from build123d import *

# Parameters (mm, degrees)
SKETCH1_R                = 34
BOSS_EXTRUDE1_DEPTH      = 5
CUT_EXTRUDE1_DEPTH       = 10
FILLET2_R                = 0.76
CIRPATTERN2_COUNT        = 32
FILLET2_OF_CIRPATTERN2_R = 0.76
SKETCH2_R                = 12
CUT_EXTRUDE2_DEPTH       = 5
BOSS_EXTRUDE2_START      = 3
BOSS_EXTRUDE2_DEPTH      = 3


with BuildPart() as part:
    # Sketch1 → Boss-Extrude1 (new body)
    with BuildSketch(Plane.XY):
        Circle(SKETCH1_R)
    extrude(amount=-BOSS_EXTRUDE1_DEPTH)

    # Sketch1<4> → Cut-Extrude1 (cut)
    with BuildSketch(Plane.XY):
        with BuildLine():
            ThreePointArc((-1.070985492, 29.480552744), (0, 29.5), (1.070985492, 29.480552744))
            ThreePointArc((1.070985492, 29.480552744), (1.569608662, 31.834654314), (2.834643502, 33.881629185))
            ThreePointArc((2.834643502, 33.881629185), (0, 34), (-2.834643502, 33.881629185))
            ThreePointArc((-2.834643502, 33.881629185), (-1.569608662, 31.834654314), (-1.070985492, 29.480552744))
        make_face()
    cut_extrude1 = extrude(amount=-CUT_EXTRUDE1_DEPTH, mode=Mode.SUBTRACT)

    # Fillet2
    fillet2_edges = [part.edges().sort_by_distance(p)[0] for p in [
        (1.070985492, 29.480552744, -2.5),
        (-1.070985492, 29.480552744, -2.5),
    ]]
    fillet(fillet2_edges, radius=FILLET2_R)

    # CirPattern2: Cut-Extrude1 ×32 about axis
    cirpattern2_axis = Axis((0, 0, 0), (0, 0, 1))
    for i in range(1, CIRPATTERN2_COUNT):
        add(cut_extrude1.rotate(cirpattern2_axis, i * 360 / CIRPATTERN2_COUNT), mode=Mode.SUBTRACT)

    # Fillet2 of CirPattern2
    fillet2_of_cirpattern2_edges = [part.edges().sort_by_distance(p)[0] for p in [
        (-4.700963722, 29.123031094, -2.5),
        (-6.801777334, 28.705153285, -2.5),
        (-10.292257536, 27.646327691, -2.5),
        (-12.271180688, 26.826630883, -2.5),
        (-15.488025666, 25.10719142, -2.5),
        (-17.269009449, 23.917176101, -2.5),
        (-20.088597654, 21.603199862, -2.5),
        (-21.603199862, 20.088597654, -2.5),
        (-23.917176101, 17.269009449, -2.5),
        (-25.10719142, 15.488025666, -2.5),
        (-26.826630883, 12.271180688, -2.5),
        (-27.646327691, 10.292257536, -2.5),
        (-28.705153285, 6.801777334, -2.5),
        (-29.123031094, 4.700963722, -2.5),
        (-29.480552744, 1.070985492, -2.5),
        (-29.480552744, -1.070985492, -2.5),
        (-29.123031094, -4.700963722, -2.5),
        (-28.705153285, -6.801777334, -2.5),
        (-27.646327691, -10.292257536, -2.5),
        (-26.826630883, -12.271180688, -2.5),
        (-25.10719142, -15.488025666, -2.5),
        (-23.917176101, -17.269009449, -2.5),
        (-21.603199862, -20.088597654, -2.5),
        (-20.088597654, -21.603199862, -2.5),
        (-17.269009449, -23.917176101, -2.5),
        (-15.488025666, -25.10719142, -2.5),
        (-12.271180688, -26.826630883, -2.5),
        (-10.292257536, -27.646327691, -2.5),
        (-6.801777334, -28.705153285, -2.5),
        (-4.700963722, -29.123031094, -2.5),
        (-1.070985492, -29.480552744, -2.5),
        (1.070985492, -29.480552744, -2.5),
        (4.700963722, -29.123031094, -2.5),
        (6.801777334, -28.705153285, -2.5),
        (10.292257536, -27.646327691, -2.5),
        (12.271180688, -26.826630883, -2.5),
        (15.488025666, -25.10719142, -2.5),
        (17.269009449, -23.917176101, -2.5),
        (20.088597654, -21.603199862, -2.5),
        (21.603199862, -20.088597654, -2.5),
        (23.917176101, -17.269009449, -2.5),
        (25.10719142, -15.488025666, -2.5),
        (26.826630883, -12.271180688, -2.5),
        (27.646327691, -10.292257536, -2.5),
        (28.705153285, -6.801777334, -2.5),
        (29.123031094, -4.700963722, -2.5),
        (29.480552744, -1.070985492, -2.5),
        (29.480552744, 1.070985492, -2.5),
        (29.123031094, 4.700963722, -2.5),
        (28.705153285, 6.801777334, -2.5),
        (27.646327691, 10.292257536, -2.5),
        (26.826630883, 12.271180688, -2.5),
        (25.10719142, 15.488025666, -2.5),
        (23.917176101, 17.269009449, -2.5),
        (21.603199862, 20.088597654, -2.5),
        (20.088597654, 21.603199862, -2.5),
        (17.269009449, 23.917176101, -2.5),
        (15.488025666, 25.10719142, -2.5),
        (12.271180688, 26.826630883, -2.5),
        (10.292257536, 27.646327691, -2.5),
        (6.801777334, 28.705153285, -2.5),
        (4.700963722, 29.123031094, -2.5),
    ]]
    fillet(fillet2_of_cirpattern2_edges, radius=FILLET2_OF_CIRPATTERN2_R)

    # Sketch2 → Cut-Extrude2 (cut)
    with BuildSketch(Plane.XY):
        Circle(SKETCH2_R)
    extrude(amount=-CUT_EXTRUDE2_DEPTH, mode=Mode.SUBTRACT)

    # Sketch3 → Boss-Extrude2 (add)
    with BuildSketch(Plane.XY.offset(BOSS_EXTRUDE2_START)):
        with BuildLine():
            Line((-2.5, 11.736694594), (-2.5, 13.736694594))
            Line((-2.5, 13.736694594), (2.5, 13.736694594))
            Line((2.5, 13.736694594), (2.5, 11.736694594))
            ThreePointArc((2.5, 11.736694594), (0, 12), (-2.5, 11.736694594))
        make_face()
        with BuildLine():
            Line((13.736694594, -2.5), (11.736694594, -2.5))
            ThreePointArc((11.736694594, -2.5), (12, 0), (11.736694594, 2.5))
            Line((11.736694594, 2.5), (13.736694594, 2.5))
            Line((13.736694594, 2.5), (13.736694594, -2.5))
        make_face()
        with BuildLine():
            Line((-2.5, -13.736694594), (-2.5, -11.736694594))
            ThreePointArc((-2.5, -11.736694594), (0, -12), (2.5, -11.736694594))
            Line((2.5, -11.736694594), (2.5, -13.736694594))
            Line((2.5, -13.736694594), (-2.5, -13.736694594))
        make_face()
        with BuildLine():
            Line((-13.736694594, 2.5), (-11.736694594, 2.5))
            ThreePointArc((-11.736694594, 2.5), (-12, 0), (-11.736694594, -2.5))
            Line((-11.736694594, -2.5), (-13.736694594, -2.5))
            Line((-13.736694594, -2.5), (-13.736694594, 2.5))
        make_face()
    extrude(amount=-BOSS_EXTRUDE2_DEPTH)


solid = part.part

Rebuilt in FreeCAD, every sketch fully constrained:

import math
import FreeCAD as App
import Part
import Sketcher
from FreeCAD import Vector


def edges_at(feature, points):
    """Names of the edges that pass closest to the given points."""
    edges = feature.Shape.Edges
    near = lambda p: min(range(len(edges)), key=lambda i: edges[i].distToShape(Part.Vertex(*p))[0])
    return sorted({f"Edge{near(p) + 1}" for p in points})

doc = App.newDocument("Part")
body = doc.addObject("PartDesign::Body", "Body")

# Sketch on XY plane
sketch1 = body.newObject("Sketcher::SketchObject", "Sketch")
sketch1.AttachmentSupport = (doc.getObject("XY_Plane"), [""])
sketch1.MapMode = "FlatFace"
sketch1.addGeometry(Part.Circle(Vector(0, 0, 0), Vector(0, 0, 1), 34), False)
sketch1.addConstraint(Sketcher.Constraint("Coincident", 0, 3, -1, 1))
sketch1.addConstraint(Sketcher.Constraint("Diameter", 0, 68.0))
pad1 = body.newObject("PartDesign::Pad", "Pad")
pad1.Profile = sketch1
pad1.Length = 5
pad1.Reversed = True

# Sketch on XY plane
sketch2 = body.newObject("Sketcher::SketchObject", "Sketch001")
sketch2.AttachmentSupport = (doc.getObject("XY_Plane"), [""])
sketch2.MapMode = "FlatFace"
sketch2.addGeometry(Part.ArcOfCircle(Part.Circle(Vector(0, 0, 0), Vector(0, 0, 1), 29.5), math.radians(87.92), math.radians(92.08)), False)
sketch2.addGeometry(Part.ArcOfCircle(Part.Circle(Vector(8.1, 29.2, 0), Vector(0, 0, 1), 7), math.radians(138), math.radians(178)), False)
sketch2.addGeometry(Part.ArcOfCircle(Part.Circle(Vector(0, 0, 0), Vector(0, 0, 1), 34), math.radians(85.22), math.radians(94.78)), False)
sketch2.addGeometry(Part.ArcOfCircle(Part.Circle(Vector(-8.1, 29.2, 0), Vector(0, 0, 1), 7), math.radians(2), math.radians(42)), False)
sketch2.addConstraint(Sketcher.Constraint("Coincident", 0, 1, 1, 2))
sketch2.addConstraint(Sketcher.Constraint("Coincident", 1, 1, 2, 1))
sketch2.addConstraint(Sketcher.Constraint("Coincident", 2, 2, 3, 2))
sketch2.addConstraint(Sketcher.Constraint("Coincident", 3, 1, 0, 2))
sketch2.addConstraint(Sketcher.Constraint("Coincident", 0, 3, -1, 1))
sketch2.addConstraint(Sketcher.Constraint("Coincident", 2, 3, -1, 1))
sketch2.addConstraint(Sketcher.Constraint("Equal", 1, 3))
sketch2.addConstraint(Sketcher.Constraint("Symmetric", 1, 3, 3, 3, -2))
sketch2.addConstraint(Sketcher.Constraint("Radius", 2, 34.0))
sketch2.addConstraint(Sketcher.Constraint("Radius", 0, 29.5))
sketch2.addConstraint(Sketcher.Constraint("Radius", 1, 7.013084))
sketch2.addConstraint(Sketcher.Constraint("DistanceY", -1, 1, 1, 1, 33.881629))
sketch2.addConstraint(Sketcher.Constraint("DistanceX", 3, 3, 1, 3, 16.158892))
pocket1 = body.newObject("PartDesign::Pocket", "Pocket")
pocket1.Profile = sketch2
pocket1.Length = 10
doc.recompute()

fillet = body.newObject("PartDesign::Fillet", "Fillet")
fillet.Base = (pocket1, edges_at(pocket1, [(1.071, 29.481, -2.5), (-1.071, 29.481, -2.5)]))
fillet.Radius = 0.76
doc.recompute()

polarpattern = body.newObject("PartDesign::PolarPattern", "PolarPattern")
polarpattern.Originals = [pocket1]
polarpattern.Axis = (doc.getObject("Z_Axis"), [""])
polarpattern.Angle = 360
polarpattern.Occurrences = 32
body.Tip = polarpattern
doc.recompute()

fillet2 = body.newObject("PartDesign::Fillet", "Fillet001")
fillet2.Base = (polarpattern, edges_at(polarpattern, [
    (-4.701, 29.123, -2.5),
    (-6.802, 28.705, -2.5),
    (-10.292, 27.646, -2.5),
    (-12.271, 26.827, -2.5),
    (-15.488, 25.107, -2.5),
    (-17.269, 23.917, -2.5),
    (-20.089, 21.603, -2.5),
    (-21.603, 20.089, -2.5),
    (-23.917, 17.269, -2.5),
    (-25.107, 15.488, -2.5),
    (-26.827, 12.271, -2.5),
    (-27.646, 10.292, -2.5),
    (-28.705, 6.802, -2.5),
    (-29.123, 4.701, -2.5),
    (-29.481, 1.071, -2.5),
    (-29.481, -1.071, -2.5),
    (-29.123, -4.701, -2.5),
    (-28.705, -6.802, -2.5),
    (-27.646, -10.292, -2.5),
    (-26.827, -12.271, -2.5),
    (-25.107, -15.488, -2.5),
    (-23.917, -17.269, -2.5),
    (-21.603, -20.089, -2.5),
    (-20.089, -21.603, -2.5),
    (-17.269, -23.917, -2.5),
    (-15.488, -25.107, -2.5),
    (-12.271, -26.827, -2.5),
    (-10.292, -27.646, -2.5),
    (-6.802, -28.705, -2.5),
    (-4.701, -29.123, -2.5),
    (-1.071, -29.481, -2.5),
    (1.071, -29.481, -2.5),
    (4.701, -29.123, -2.5),
    (6.802, -28.705, -2.5),
    (10.292, -27.646, -2.5),
    (12.271, -26.827, -2.5),
    (15.488, -25.107, -2.5),
    (17.269, -23.917, -2.5),
    (20.089, -21.603, -2.5),
    (21.603, -20.089, -2.5),
    (23.917, -17.269, -2.5),
    (25.107, -15.488, -2.5),
    (26.827, -12.271, -2.5),
    (27.646, -10.292, -2.5),
    (28.705, -6.802, -2.5),
    (29.123, -4.701, -2.5),
    (29.481, -1.071, -2.5),
    (29.481, 1.071, -2.5),
    (29.123, 4.701, -2.5),
    (28.705, 6.802, -2.5),
    (27.646, 10.292, -2.5),
    (26.827, 12.271, -2.5),
    (25.107, 15.488, -2.5),
    (23.917, 17.269, -2.5),
    (21.603, 20.089, -2.5),
    (20.089, 21.603, -2.5),
    (17.269, 23.917, -2.5),
    (15.488, 25.107, -2.5),
    (12.271, 26.827, -2.5),
    (10.292, 27.646, -2.5),
    (6.802, 28.705, -2.5),
    (4.701, 29.123, -2.5),
]))
fillet2.Radius = 0.76

# Sketch on XY plane
sketch3 = body.newObject("Sketcher::SketchObject", "Sketch002")
sketch3.AttachmentSupport = (doc.getObject("XY_Plane"), [""])
sketch3.MapMode = "FlatFace"
sketch3.addGeometry(Part.Circle(Vector(0, 0, 0), Vector(0, 0, 1), 12), False)
sketch3.addConstraint(Sketcher.Constraint("Coincident", 0, 3, -1, 1))
sketch3.addConstraint(Sketcher.Constraint("Diameter", 0, 24.0))
pocket2 = body.newObject("PartDesign::Pocket", "Pocket001")
pocket2.Profile = sketch3
pocket2.Length = 5

# Sketch on XY plane
sketch4 = body.newObject("Sketcher::SketchObject", "Sketch003")
sketch4.AttachmentSupport = (doc.getObject("XY_Plane"), [""])
sketch4.MapMode = "FlatFace"
sketch4.AttachmentOffset = App.Placement(Vector(0, 0, 3), App.Rotation())
sketch4.addGeometry(Part.LineSegment(Vector(-2.5, 13.7, 0), Vector(-2.5, 11.7, 0)), False)
sketch4.addGeometry(Part.ArcOfCircle(Part.Circle(Vector(0, 0, 0), Vector(0, 0, 1), 12), math.radians(78), math.radians(102)), False)
sketch4.addGeometry(Part.LineSegment(Vector(2.5, 11.7, 0), Vector(2.5, 13.7, 0)), False)
sketch4.addGeometry(Part.LineSegment(Vector(2.5, 13.7, 0), Vector(-2.5, 13.7, 0)), False)
sketch4.addGeometry(Part.LineSegment(Vector(11.7, -2.5, 0), Vector(13.7, -2.5, 0)), False)
sketch4.addGeometry(Part.LineSegment(Vector(13.7, -2.5, 0), Vector(13.7, 2.5, 0)), False)
sketch4.addGeometry(Part.LineSegment(Vector(13.7, 2.5, 0), Vector(11.7, 2.5, 0)), False)
sketch4.addGeometry(Part.ArcOfCircle(Part.Circle(Vector(0, 0, 0), Vector(0, 0, 1), 12), math.radians(-12), math.radians(12)), False)
sketch4.addGeometry(Part.LineSegment(Vector(-2.5, -11.7, 0), Vector(-2.5, -13.7, 0)), False)
sketch4.addGeometry(Part.LineSegment(Vector(-2.5, -13.7, 0), Vector(2.5, -13.7, 0)), False)
sketch4.addGeometry(Part.LineSegment(Vector(2.5, -13.7, 0), Vector(2.5, -11.7, 0)), False)
sketch4.addGeometry(Part.ArcOfCircle(Part.Circle(Vector(0, 0, 0), Vector(0, 0, 1), 12), math.radians(-102), math.radians(-78)), False)
sketch4.addGeometry(Part.LineSegment(Vector(-11.7, 2.5, 0), Vector(-13.7, 2.5, 0)), False)
sketch4.addGeometry(Part.LineSegment(Vector(-13.7, 2.5, 0), Vector(-13.7, -2.5, 0)), False)
sketch4.addGeometry(Part.LineSegment(Vector(-13.7, -2.5, 0), Vector(-11.7, -2.5, 0)), False)
sketch4.addGeometry(Part.ArcOfCircle(Part.Circle(Vector(0, 0, 0), Vector(0, 0, 1), 12), math.radians(168), math.radians(192)), False)
sketch4.addConstraint(Sketcher.Constraint("Coincident", 0, 2, 1, 2))
sketch4.addConstraint(Sketcher.Constraint("Coincident", 1, 1, 2, 1))
sketch4.addConstraint(Sketcher.Constraint("Coincident", 2, 2, 3, 1))
sketch4.addConstraint(Sketcher.Constraint("Coincident", 3, 2, 0, 1))
sketch4.addConstraint(Sketcher.Constraint("Coincident", 4, 2, 5, 1))
sketch4.addConstraint(Sketcher.Constraint("Coincident", 5, 2, 6, 1))
sketch4.addConstraint(Sketcher.Constraint("Coincident", 6, 2, 7, 2))
sketch4.addConstraint(Sketcher.Constraint("Coincident", 7, 1, 4, 1))
sketch4.addConstraint(Sketcher.Constraint("Coincident", 8, 2, 9, 1))
sketch4.addConstraint(Sketcher.Constraint("Coincident", 9, 2, 10, 1))
sketch4.addConstraint(Sketcher.Constraint("Coincident", 10, 2, 11, 2))
sketch4.addConstraint(Sketcher.Constraint("Coincident", 11, 1, 8, 1))
sketch4.addConstraint(Sketcher.Constraint("Coincident", 12, 2, 13, 1))
sketch4.addConstraint(Sketcher.Constraint("Coincident", 13, 2, 14, 1))
sketch4.addConstraint(Sketcher.Constraint("Coincident", 14, 2, 15, 2))
sketch4.addConstraint(Sketcher.Constraint("Coincident", 15, 1, 12, 1))
sketch4.addConstraint(Sketcher.Constraint("Vertical", 0))
sketch4.addConstraint(Sketcher.Constraint("Vertical", 2))
sketch4.addConstraint(Sketcher.Constraint("Horizontal", 3))
sketch4.addConstraint(Sketcher.Constraint("Horizontal", 4))
sketch4.addConstraint(Sketcher.Constraint("Vertical", 5))
sketch4.addConstraint(Sketcher.Constraint("Horizontal", 6))
sketch4.addConstraint(Sketcher.Constraint("Vertical", 8))
sketch4.addConstraint(Sketcher.Constraint("Horizontal", 9))
sketch4.addConstraint(Sketcher.Constraint("Vertical", 10))
sketch4.addConstraint(Sketcher.Constraint("Horizontal", 12))
sketch4.addConstraint(Sketcher.Constraint("Vertical", 13))
sketch4.addConstraint(Sketcher.Constraint("Horizontal", 14))
sketch4.addConstraint(Sketcher.Constraint("Coincident", 1, 3, -1, 1))
sketch4.addConstraint(Sketcher.Constraint("Coincident", 7, 3, -1, 1))
sketch4.addConstraint(Sketcher.Constraint("Coincident", 11, 3, -1, 1))
sketch4.addConstraint(Sketcher.Constraint("Coincident", 15, 3, -1, 1))
sketch4.addConstraint(Sketcher.Constraint("Equal", 1, 7))
sketch4.addConstraint(Sketcher.Constraint("Equal", 7, 11))
sketch4.addConstraint(Sketcher.Constraint("Equal", 11, 15))
sketch4.addConstraint(Sketcher.Constraint("Symmetric", 2, 2, 8, 2, -1, 1))
sketch4.addConstraint(Sketcher.Constraint("Symmetric", 4, 2, 12, 2, -1, 1))
sketch4.addConstraint(Sketcher.Constraint("Horizontal", 0, 2, 1, 1))
sketch4.addConstraint(Sketcher.Constraint("Horizontal", 10, 2, 11, 1))
sketch4.addConstraint(Sketcher.Constraint("Horizontal", 6, 2, 12, 2))
sketch4.addConstraint(Sketcher.Constraint("Horizontal", 7, 1, 13, 2))
sketch4.addConstraint(Sketcher.Constraint("Equal", 14, 0))
sketch4.addConstraint(Sketcher.Constraint("Equal", 9, 5))
sketch4.addConstraint(Sketcher.Constraint("Radius", 1, 12.0))
sketch4.addConstraint(Sketcher.Constraint("DistanceX", 3, 2, 3, 1, 5.0))
sketch4.addConstraint(Sketcher.Constraint("DistanceX", 4, 1, 4, 2, 2.0))
pad2 = body.newObject("PartDesign::Pad", "Pad001")
pad2.Profile = sketch4
pad2.Length = 3
pad2.Reversed = True

doc.recompute()
